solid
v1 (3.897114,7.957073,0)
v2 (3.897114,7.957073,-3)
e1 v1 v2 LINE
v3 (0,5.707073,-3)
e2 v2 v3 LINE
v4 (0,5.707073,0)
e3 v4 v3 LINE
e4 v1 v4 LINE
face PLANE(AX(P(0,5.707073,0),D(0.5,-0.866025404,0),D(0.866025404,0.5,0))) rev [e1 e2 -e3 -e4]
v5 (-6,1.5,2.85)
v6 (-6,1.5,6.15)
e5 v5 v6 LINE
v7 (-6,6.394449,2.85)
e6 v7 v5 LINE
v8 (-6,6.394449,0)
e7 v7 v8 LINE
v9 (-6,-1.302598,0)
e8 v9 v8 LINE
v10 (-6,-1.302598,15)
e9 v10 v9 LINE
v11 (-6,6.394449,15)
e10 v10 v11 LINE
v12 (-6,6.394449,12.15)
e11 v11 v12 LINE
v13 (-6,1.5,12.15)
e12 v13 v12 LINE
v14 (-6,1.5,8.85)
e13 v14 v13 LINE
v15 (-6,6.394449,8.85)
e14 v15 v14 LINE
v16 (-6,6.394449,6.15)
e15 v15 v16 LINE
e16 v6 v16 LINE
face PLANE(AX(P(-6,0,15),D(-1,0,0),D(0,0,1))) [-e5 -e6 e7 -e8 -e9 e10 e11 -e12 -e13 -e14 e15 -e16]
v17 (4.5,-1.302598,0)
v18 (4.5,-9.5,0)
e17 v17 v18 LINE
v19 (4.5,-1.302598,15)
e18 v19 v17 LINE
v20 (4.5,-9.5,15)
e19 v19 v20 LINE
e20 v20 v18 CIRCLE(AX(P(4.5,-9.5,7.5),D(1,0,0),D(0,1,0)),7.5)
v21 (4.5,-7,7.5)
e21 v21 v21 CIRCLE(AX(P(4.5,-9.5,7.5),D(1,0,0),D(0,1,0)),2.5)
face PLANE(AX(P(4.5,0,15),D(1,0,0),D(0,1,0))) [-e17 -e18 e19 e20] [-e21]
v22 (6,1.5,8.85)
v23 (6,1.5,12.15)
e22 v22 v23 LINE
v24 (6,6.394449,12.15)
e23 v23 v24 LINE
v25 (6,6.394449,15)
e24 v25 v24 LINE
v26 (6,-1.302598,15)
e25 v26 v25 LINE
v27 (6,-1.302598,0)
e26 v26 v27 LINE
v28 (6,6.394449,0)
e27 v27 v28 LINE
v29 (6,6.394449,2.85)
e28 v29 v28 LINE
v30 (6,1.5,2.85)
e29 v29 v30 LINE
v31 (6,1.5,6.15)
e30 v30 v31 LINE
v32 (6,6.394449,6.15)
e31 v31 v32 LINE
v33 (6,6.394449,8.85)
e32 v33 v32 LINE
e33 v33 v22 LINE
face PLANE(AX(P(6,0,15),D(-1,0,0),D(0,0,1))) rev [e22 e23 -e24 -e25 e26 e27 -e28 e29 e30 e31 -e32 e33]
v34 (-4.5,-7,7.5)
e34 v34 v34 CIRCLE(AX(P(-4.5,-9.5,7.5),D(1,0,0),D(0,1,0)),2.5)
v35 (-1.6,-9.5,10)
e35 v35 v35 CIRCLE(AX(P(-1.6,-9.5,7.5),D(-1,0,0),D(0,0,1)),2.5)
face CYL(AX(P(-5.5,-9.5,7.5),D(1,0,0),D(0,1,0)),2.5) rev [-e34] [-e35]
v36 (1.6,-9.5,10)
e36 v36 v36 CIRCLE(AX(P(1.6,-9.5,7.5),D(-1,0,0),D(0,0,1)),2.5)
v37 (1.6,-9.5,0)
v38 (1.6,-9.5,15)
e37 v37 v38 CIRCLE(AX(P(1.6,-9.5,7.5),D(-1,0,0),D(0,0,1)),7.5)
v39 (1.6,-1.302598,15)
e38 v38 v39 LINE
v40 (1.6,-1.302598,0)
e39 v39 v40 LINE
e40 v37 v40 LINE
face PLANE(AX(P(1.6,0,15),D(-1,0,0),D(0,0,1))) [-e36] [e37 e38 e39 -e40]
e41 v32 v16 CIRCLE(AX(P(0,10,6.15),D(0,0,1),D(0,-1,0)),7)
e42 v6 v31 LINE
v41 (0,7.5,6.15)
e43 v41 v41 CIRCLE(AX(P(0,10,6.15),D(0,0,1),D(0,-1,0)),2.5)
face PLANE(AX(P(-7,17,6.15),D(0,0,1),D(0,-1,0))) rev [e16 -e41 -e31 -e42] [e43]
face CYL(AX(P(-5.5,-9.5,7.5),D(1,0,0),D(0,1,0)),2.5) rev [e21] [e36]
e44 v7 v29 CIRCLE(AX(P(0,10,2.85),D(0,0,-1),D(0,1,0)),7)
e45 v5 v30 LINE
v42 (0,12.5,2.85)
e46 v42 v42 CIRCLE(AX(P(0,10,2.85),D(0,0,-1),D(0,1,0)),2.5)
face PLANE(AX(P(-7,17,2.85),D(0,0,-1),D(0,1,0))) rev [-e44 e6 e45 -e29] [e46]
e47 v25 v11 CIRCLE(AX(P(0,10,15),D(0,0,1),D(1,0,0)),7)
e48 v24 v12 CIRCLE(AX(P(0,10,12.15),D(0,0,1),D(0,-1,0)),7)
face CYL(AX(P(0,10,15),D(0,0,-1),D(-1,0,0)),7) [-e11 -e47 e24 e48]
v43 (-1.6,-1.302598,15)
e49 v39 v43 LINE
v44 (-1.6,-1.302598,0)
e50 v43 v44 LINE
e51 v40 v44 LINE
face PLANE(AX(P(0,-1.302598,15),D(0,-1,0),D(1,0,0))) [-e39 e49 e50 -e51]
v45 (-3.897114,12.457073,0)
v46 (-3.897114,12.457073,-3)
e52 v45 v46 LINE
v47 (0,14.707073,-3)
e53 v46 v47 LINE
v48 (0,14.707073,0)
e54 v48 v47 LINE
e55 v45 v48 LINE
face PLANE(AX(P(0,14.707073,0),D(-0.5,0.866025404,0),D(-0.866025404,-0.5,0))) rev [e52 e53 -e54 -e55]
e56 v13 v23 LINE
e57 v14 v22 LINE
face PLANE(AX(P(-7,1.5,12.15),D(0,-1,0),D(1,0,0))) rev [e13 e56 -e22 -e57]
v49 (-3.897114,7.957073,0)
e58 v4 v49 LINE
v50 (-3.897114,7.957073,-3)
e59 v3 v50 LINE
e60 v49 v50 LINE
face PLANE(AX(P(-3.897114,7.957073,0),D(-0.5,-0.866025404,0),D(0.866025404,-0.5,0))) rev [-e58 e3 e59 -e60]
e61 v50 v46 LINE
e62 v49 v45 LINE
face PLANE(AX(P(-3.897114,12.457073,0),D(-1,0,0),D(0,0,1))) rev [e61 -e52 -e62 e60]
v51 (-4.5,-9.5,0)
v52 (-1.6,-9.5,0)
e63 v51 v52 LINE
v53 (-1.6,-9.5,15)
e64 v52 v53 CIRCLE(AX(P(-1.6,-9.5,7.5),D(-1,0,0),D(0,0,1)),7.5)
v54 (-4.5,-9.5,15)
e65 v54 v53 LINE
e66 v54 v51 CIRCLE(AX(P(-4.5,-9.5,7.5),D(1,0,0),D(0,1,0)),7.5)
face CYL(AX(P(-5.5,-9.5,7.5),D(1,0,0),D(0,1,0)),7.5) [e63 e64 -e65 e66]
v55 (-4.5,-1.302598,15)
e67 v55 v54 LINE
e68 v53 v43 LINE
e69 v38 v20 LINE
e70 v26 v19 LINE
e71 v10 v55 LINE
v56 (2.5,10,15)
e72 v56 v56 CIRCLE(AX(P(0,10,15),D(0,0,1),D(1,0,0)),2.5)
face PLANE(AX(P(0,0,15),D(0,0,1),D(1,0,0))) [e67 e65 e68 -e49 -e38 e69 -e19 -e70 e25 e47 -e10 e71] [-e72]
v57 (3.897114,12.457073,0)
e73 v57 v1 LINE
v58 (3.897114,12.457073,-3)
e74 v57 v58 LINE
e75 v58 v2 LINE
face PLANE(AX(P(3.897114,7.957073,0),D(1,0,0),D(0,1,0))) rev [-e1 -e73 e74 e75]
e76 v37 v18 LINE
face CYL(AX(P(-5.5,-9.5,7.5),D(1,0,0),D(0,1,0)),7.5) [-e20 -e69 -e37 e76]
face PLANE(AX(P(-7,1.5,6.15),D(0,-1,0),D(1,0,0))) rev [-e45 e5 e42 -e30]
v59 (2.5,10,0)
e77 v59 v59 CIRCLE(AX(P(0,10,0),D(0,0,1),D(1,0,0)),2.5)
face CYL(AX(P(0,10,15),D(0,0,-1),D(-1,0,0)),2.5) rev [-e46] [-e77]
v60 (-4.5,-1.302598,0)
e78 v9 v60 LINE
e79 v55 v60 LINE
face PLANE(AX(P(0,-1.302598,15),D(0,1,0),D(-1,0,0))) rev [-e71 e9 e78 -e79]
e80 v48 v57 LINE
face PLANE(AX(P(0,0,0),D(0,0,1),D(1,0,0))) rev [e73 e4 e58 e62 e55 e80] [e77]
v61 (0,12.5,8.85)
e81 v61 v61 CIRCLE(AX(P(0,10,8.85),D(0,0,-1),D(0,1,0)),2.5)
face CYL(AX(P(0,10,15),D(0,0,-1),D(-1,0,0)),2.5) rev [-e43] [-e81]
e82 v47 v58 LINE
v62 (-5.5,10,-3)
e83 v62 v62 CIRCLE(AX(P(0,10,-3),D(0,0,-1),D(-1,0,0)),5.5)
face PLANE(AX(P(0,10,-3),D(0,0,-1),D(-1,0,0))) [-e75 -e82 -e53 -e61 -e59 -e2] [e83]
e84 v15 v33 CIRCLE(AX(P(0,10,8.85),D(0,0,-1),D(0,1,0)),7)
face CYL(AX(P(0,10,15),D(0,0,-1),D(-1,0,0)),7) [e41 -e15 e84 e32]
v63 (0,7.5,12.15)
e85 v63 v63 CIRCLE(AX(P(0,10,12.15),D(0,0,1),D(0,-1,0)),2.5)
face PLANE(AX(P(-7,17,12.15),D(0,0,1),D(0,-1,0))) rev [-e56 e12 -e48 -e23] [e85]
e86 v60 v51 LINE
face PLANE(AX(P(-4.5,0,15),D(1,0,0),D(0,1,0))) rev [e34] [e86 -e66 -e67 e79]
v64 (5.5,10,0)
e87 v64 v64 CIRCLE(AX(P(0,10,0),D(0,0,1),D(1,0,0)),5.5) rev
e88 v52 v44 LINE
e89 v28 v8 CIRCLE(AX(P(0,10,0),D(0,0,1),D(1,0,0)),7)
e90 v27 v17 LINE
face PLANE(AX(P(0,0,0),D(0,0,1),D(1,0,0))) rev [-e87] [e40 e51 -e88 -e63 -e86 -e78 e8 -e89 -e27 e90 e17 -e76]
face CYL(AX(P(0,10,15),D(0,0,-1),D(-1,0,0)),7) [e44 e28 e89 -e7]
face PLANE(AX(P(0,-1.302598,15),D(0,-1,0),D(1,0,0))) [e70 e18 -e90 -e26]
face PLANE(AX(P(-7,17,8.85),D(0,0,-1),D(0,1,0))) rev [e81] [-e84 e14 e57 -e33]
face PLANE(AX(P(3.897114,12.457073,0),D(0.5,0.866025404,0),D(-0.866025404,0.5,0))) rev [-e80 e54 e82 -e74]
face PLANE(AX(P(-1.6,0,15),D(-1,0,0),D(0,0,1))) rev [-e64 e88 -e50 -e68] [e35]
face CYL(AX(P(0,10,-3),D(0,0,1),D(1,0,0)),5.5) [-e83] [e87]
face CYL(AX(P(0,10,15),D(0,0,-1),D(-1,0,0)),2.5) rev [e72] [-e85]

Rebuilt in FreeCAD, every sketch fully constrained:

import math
import FreeCAD as App
import Part
import Sketcher

V = App.Vector
Q = App.Units.Quantity

doc = App.newDocument("Part")
params = doc.addObject("Spreadsheet::Sheet", "Params")
for row, (alias, value) in enumerate([
    ("sketch1_diameter", "5 mm"),
    ("sketch1_radius", "7 mm"),
    ("sketch1_width", "2.9 mm"),
    ("sketch1_width2", "3.2 mm"),
    ("sketch1_width3", "1.5 mm"),
    ("pad1_length", "15 mm"),
    ("sketch2_width", "15.5 mm"),
    ("sketch2_height", "3.3 mm"),
    ("sketch3_diameter", "5 mm"),
    ("sketch3_radius", "7.5 mm"),
    ("pocket2_length", "10 mm"),
    ("sketch4_diameter", "11 mm"),
    ("sketch4_diameter2", "5 mm"),
    ("pad2_length", "3 mm"),
    ("sketch5_height", "4.5 mm"),
    ("pocket3_length", "3 mm"),
], start=1):
    params.set(f"A{row}", alias)
    params.set(f"B{row}", "=" + value)
    params.setAlias(f"B{row}", alias)

body = doc.addObject("PartDesign::Body", "Body")

sketch1 = doc.addObject("Sketcher::SketchObject", "Sketch")
body.addObject(sketch1)
sketch1.AttachmentSupport = (doc.XY_Plane, [""])
sketch1.MapMode = "FlatFace"
sketch1.addGeometry([
    Part.LineSegment(V(-4.5, -1.3, 0), V(-4.5, -17, 0)),
    Part.LineSegment(V(-4.5, -17, 0), V(-1.6, -17, 0)),
    Part.LineSegment(V(-1.6, -17, 0), V(-1.6, -1.3, 0)),
    Part.LineSegment(V(-1.6, -1.3, 0), V(1.6, -1.3, 0)),
    Part.LineSegment(V(1.6, -1.3, 0), V(1.6, -17, 0)),
    Part.LineSegment(V(1.6, -17, 0), V(4.5, -17, 0)),
    Part.LineSegment(V(4.5, -17, 0), V(4.5, -1.3, 0)),
    Part.LineSegment(V(4.5, -1.3, 0), V(6, -1.3, 0)),
    Part.LineSegment(V(6, -1.3, 0), V(6, 6.4, 0)),
    Part.ArcOfCircle(Part.Circle(V(0, 10, 0), V(0, 0, 1), 7), math.radians(-31), math.radians(0)),
    Part.ArcOfCircle(Part.Circle(V(0, 10, 0), V(0, 0, 1), 7), math.radians(0), math.radians(31)),
    Part.ArcOfCircle(Part.Circle(V(0, 10, 0), V(0, 0, 1), 7), math.radians(31), math.radians(90)),
    Part.ArcOfCircle(Part.Circle(V(0, 10, 0), V(0, 0, 1), 7), math.radians(90), math.radians(149)),
    Part.ArcOfCircle(Part.Circle(V(0, 10, 0), V(0, 0, 1), 7), math.radians(149), math.radians(211)),
    Part.LineSegment(V(-6, 6.4, 0), V(-6, -1.3, 0)),
    Part.LineSegment(V(-6, -1.3, 0), V(-4.5, -1.3, 0)),
    Part.Circle(V(0, 10, 0), V(0, 0, 1), 2.5),
], False)
sketch1.addConstraint([
    Sketcher.Constraint("Coincident", 0, 2, 1, 1),
    Sketcher.Constraint("Coincident", 1, 2, 2, 1),
    Sketcher.Constraint("Coincident", 2, 2, 3, 1),
    Sketcher.Constraint("Coincident", 3, 2, 4, 1),
    Sketcher.Constraint("Coincident", 4, 2, 5, 1),
    Sketcher.Constraint("Coincident", 5, 2, 6, 1),
    Sketcher.Constraint("Coincident", 6, 2, 7, 1),
    Sketcher.Constraint("Coincident", 7, 2, 8, 1),
    Sketcher.Constraint("Coincident", 8, 2, 9, 1),
    Sketcher.Constraint("Tangent", 9, 2, 10, 1),
    Sketcher.Constraint("Tangent", 10, 2, 11, 1),
    Sketcher.Constraint("Tangent", 11, 2, 12, 1),
    Sketcher.Constraint("Tangent", 12, 2, 13, 1),
    Sketcher.Constraint("Coincident", 13, 2, 14, 1),
    Sketcher.Constraint("Coincident", 14, 2, 15, 1),
    Sketcher.Constraint("Coincident", 15, 2, 0, 1),
    Sketcher.Constraint("Vertical", 0),
    Sketcher.Constraint("Horizontal", 1),
    Sketcher.Constraint("Vertical", 2),
    Sketcher.Constraint("Horizontal", 3),
    Sketcher.Constraint("Vertical", 4),
    Sketcher.Constraint("Horizontal", 5),
    Sketcher.Constraint("Vertical", 6),
    Sketcher.Constraint("Horizontal", 7),
    Sketcher.Constraint("Vertical", 8),
    Sketcher.Constraint("Vertical", 14),
    Sketcher.Constraint("Horizontal", 15),
    Sketcher.Constraint("Coincident", 11, 3, 9, 3),
    Sketcher.Constraint("Coincident", 13, 3, 9, 3),
    Sketcher.Constraint("Coincident", 16, 3, 9, 3),
    Sketcher.Constraint("Symmetric", 1, 2, 4, 2, -2),
    Sketcher.Constraint("Symmetric", 10, 2, 12, 2, -2),
    Sketcher.Constraint("Symmetric", 7, 2, 14, 2, -2),
    Sketcher.Constraint("PointOnObject", 11, 2, -2),
    Sketcher.Constraint("Horizontal", 3, 2, 6, 2),
    Sketcher.Constraint("Horizontal", 16, 3, 9, 2),
    Sketcher.Constraint("Vertical", 8, 2, 10, 2),
    Sketcher.Constraint("Equal", 1, 5),
    Sketcher.Constraint("Diameter", 16, Q("5 mm")),
    Sketcher.Constraint("Radius", 9, Q("7 mm")),
    Sketcher.Constraint("DistanceX", 1, 1, 1, 2, Q("2.9 mm")),
    Sketcher.Constraint("DistanceX", 3, 1, 3, 2, Q("3.2 mm")),
    Sketcher.Constraint("DistanceX", 7, 1, 7, 2, Q("1.5 mm")),
    Sketcher.Constraint("DistanceY", -1, 1, 9, 3, Q("10 mm")),
    Sketcher.Constraint("DistanceY", 0, 2, -1, 1, Q("17 mm")),
    Sketcher.Constraint("DistanceY", 0, 2, 0, 1, Q("15.697402 mm")),
])
sketch1.setExpression("Constraints[38]", "Params.sketch1_diameter")
sketch1.setExpression("Constraints[39]", "Params.sketch1_radius")
sketch1.setExpression("Constraints[40]", "Params.sketch1_width")
sketch1.setExpression("Constraints[41]", "Params.sketch1_width2")
sketch1.setExpression("Constraints[42]", "Params.sketch1_width3")
pad1 = doc.addObject("PartDesign::Pad", "Pad")
body.addObject(pad1)
pad1.Profile = sketch1
pad1.setExpression("Length", "Params.pad1_length")

sketch2 = doc.addObject("Sketcher::SketchObject", "Sketch001")
body.addObject(sketch2)
sketch2.AttachmentSupport = (doc.YZ_Plane, [""])
sketch2.MapMode = "FlatFace"
sketch2.AttachmentOffset = App.Placement(V(0, 0, 4.5), App.Rotation())
sketch2.addGeometry([
    Part.LineSegment(V(17, 12.2, 0), V(1.5, 12.2, 0)),
    Part.LineSegment(V(1.5, 12.2, 0), V(1.5, 8.8, 0)),
    Part.LineSegment(V(1.5, 8.8, 0), V(17, 8.8, 0)),
    Part.LineSegment(V(17, 8.8, 0), V(17, 12.2, 0)),
    Part.LineSegment(V(17, 6.2, 0), V(1.5, 6.2, 0)),
    Part.LineSegment(V(1.5, 6.2, 0), V(1.5, 2.9, 0)),
    Part.LineSegment(V(1.5, 2.9, 0), V(17, 2.9, 0)),
    Part.LineSegment(V(17, 2.9, 0), V(17, 6.2, 0)),
], False)
sketch2.addConstraint([
    Sketcher.Constraint("Coincident", 0, 2, 1, 1),
    Sketcher.Constraint("Coincident", 1, 2, 2, 1),
    Sketcher.Constraint("Coincident", 2, 2, 3, 1),
    Sketcher.Constraint("Coincident", 3, 2, 0, 1),
    Sketcher.Constraint("Coincident", 4, 2, 5, 1),
    Sketcher.Constraint("Coincident", 5, 2, 6, 1),
    Sketcher.Constraint("Coincident", 6, 2, 7, 1),
    Sketcher.Constraint("Coincident", 7, 2, 4, 1),
    Sketcher.Constraint("Horizontal", 0),
    Sketcher.Constraint("Vertical", 1),
    Sketcher.Constraint("Horizontal", 2),
    Sketcher.Constraint("Vertical", 3),
    Sketcher.Constraint("Horizontal", 4),
    Sketcher.Constraint("Vertical", 5),
    Sketcher.Constraint("Horizontal", 6),
    Sketcher.Constraint("Vertical", 7),
    Sketcher.Constraint("Vertical", 1, 2, 4, 2),
    Sketcher.Constraint("Vertical", 3, 2, 6, 2),
    Sketcher.Constraint("Equal", 3, 5),
    Sketcher.Constraint("DistanceX", 0, 2, 0, 1, Q("15.5 mm")),
    Sketcher.Constraint("DistanceY", 1, 2, 1, 1, Q("3.3 mm")),
    Sketcher.Constraint("DistanceX", -1, 1, 2, 2, Q("17 mm")),
    Sketcher.Constraint("DistanceY", 4, 2, 0, 2, Q("6 mm")),
    Sketcher.Constraint("DistanceY", -1, 1, 0, 2, Q("12.15 mm")),
])
sketch2.setExpression("Constraints[19]", "Params.sketch2_width")
sketch2.setExpression("Constraints[20]", "Params.sketch2_height")
pocket1 = doc.addObject("PartDesign::Pocket", "Pocket")
body.addObject(pocket1)
pocket1.Profile = sketch2
pocket1.Type = "ThroughAll"
pocket1.Midplane = True

sketch3 = doc.addObject("Sketcher::SketchObject", "Sketch002")
body.addObject(sketch3)
sketch3.AttachmentSupport = (doc.YZ_Plane, [""])
sketch3.MapMode = "FlatFace"
sketch3.AttachmentOffset = App.Placement(V(0, 0, 4.5), App.Rotation())
sketch3.addGeometry([
    Part.ArcOfCircle(Part.Circle(V(-9.5, 7.5, 0), V(0, 0, 1), 7.5), math.radians(90), math.radians(180)),
    Part.LineSegment(V(-9.5, 15, 0), V(-17, 15, 0)),
    Part.LineSegment(V(-17, 15, 0), V(-17, 7.5, 0)),
    Part.LineSegment(V(-17, 0, 0), V(-9.5, 0, 0)),
    Part.ArcOfCircle(Part.Circle(V(-9.5, 7.5, 0), V(0, 0, 1), 7.5), math.radians(180), math.radians(270)),
    Part.LineSegment(V(-17, 7.5, 0), V(-17, 0, 0)),
    Part.Circle(V(-9.5, 7.5, 0), V(0, 0, 1), 2.5),
], False)
sketch3.addConstraint([
    Sketcher.Constraint("Tangent", 0, 1, 1, 1),
    Sketcher.Constraint("Coincident", 1, 2, 2, 1),
    Sketcher.Constraint("Tangent", 2, 2, 0, 2),
    Sketcher.Constraint("Tangent", 3, 2, 4, 2),
    Sketcher.Constraint("Tangent", 4, 1, 5, 1),
    Sketcher.Constraint("Coincident", 5, 2, 3, 1),
    Sketcher.Constraint("Horizontal", 1),
    Sketcher.Constraint("Vertical", 2),
    Sketcher.Constraint("Horizontal", 3),
    Sketcher.Constraint("Vertical", 5),
    Sketcher.Constraint("Coincident", 4, 3, 0, 3),
    Sketcher.Constraint("Coincident", 6, 3, 0, 3),
    Sketcher.Constraint("Equal", 0, 4),
    Sketcher.Constraint("PointOnObject", 3, 2, -1),
    Sketcher.Constraint("Diameter", 6, Q("5 mm")),
    Sketcher.Constraint("Radius", 0, Q("7.5 mm")),
    Sketcher.Constraint("DistanceX", 1, 2, -1, 1, Q("17 mm")),
])
sketch3.setExpression("Constraints[14]", "Params.sketch3_diameter")
sketch3.setExpression("Constraints[15]", "Params.sketch3_radius")
pocket2 = doc.addObject("PartDesign::Pocket", "Pocket001")
body.addObject(pocket2)
pocket2.Profile = sketch3
pocket2.setExpression("Length", "Params.pocket2_length")

sketch4 = doc.addObject("Sketcher::SketchObject", "Sketch003")
body.addObject(sketch4)
sketch4.AttachmentSupport = (doc.XY_Plane, [""])
sketch4.MapMode = "FlatFace"
sketch4.addGeometry([
    Part.Circle(V(0, 10, 0), V(0, 0, 1), 5.5),
    Part.Circle(V(0, 10, 0), V(0, 0, 1), 2.5),
], False)
sketch4.addConstraint([
    Sketcher.Constraint("Coincident", 1, 3, 0, 3),
    Sketcher.Constraint("PointOnObject", 0, 3, -2),
    Sketcher.Constraint("Diameter", 0, Q("11 mm")),
    Sketcher.Constraint("Diameter", 1, Q("5 mm")),
    Sketcher.Constraint("DistanceY", -1, 1, 0, 3, Q("10 mm")),
])
sketch4.setExpression("Constraints[2]", "Params.sketch4_diameter")
sketch4.setExpression("Constraints[3]", "Params.sketch4_diameter2")
pad2 = doc.addObject("PartDesign::Pad", "Pad001")
body.addObject(pad2)
pad2.Profile = sketch4
pad2.setExpression("Length", "Params.pad2_length")
pad2.Reversed = True

sketch5 = doc.addObject("Sketcher::SketchObject", "Sketch004")
body.addObject(sketch5)
sketch5.AttachmentSupport = (doc.XY_Plane, [""])
sketch5.MapMode = "FlatFace"
sketch5.AttachmentOffset = App.Placement(V(0, 0, -3), App.Rotation())
sketch5.addGeometry([
    Part.LineSegment(V(-3.9, 12.5, 0), V(0, 14.7, 0)),
    Part.LineSegment(V(0, 14.7, 0), V(3.9, 12.5, 0)),
    Part.LineSegment(V(3.9, 12.5, 0), V(3.9, 8, 0)),
    Part.LineSegment(V(3.9, 8, 0), V(0, 5.7, 0)),
    Part.LineSegment(V(0, 5.7, 0), V(-3.9, 8, 0)),
    Part.LineSegment(V(-3.9, 8, 0), V(-3.9, 12.5, 0)),
], False)
sketch5.addConstraint([
    Sketcher.Constraint("Coincident", 0, 2, 1, 1),
    Sketcher.Constraint("Coincident", 1, 2, 2, 1),
    Sketcher.Constraint("Coincident", 2, 2, 3, 1),
    Sketcher.Constraint("Coincident", 3, 2, 4, 1),
    Sketcher.Constraint("Coincident", 4, 2, 5, 1),
    Sketcher.Constraint("Coincident", 5, 2, 0, 1),
    Sketcher.Constraint("Vertical", 2),
    Sketcher.Constraint("Vertical", 5),
    Sketcher.Constraint("Symmetric", 2, 2, 4, 2, -2),
    Sketcher.Constraint("PointOnObject", 0, 2, -2),
    Sketcher.Constraint("PointOnObject", 3, 2, -2),
    Sketcher.Constraint("Parallel", 0, 3),
    Sketcher.Constraint("Parallel", 1, 4),
    Sketcher.Constraint("Angle", 0, Q("30 deg")),
    Sketcher.Constraint("DistanceY", 2, 2, 2, 1, Q("4.5 mm")),
    Sketcher.Constraint("DistanceY", 3, 2, 0, 2, Q("9 mm")),
    Sketcher.Constraint("DistanceY", -1, 1, 0, 2, Q("14.707073 mm")),
])
sketch5.setExpression("Constraints[14]", "Params.sketch5_height")
pocket3 = doc.addObject("PartDesign::Pocket", "Pocket002")
body.addObject(pocket3)
pocket3.Profile = sketch5
pocket3.setExpression("Length", "Params.pocket3_length")
pocket3.Reversed = True

doc.recompute()
